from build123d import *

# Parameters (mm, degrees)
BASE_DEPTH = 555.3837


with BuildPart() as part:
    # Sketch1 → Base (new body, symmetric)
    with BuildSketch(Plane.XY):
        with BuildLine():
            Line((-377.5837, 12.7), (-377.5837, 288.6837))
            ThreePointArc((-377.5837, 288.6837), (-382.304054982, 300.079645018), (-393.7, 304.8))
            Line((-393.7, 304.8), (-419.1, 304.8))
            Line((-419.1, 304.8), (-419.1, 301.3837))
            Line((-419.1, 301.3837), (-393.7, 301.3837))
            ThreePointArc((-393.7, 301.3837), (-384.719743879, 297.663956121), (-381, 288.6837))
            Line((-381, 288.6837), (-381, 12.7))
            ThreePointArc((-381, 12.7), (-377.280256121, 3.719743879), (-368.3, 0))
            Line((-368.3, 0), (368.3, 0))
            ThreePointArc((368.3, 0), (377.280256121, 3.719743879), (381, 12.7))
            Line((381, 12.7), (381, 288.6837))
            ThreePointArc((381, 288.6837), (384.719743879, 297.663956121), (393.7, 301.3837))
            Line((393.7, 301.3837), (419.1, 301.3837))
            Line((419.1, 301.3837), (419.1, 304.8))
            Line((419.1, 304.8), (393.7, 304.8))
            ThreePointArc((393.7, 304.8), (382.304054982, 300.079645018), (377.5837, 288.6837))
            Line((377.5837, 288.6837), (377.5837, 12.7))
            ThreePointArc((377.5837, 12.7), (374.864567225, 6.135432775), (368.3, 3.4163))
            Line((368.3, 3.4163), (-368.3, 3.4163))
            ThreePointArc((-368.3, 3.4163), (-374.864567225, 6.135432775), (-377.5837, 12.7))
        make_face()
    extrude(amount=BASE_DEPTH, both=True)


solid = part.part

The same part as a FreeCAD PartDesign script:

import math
import FreeCAD as App
import Part
import Sketcher
Q = App.Units.Quantity

doc = App.newDocument("Part")
params = doc.addObject("Spreadsheet::Sheet", "Params")
for row, (alias, value) in enumerate([
    ("sketch1_radius", "0.5 in"),
    ("sketch1_width", "1 in"),
    ("sketch1_width2", "29 in"),
    ("pad1_length", "43.731 in"),
], start=1):
    params.set(f"A{row}", alias)
    params.set(f"B{row}", "=" + value)
    params.setAlias(f"B{row}", alias)

body = doc.addObject("PartDesign::Body", "Body")

sketch1 = doc.addObject("Sketcher::SketchObject", "Sketch")
body.addObject(sketch1)
sketch1.AttachmentSupport = (doc.XY_Plane, [""])
sketch1.MapMode = "FlatFace"
sketch1.addGeometry([
    Part.LineSegment(App.Vector(-377.5837, 12.7, 0), App.Vector(-377.5837, 288.6837, 0)),
    Part.ArcOfCircle(Part.Circle(App.Vector(-393.7, 288.6837, 0), App.Vector(0, 0, 1), 16.1163), math.radians(0), math.radians(90)),
    Part.LineSegment(App.Vector(-393.7, 304.8, 0), App.Vector(-419.1, 304.8, 0)),
    Part.LineSegment(App.Vector(-419.1, 304.8, 0), App.Vector(-419.1, 301.3837, 0)),
    Part.LineSegment(App.Vector(-419.1, 301.3837, 0), App.Vector(-393.7, 301.3837, 0)),
    Part.ArcOfCircle(Part.Circle(App.Vector(-393.7, 288.6837, 0), App.Vector(0, 0, 1), 12.7), math.radians(0), math.radians(90)),
    Part.LineSegment(App.Vector(-381, 288.6837, 0), App.Vector(-381, 12.7, 0)),
    Part.ArcOfCircle(Part.Circle(App.Vector(-368.3, 12.7, 0), App.Vector(0, 0, 1), 12.7), math.radians(180), math.radians(270)),
    Part.LineSegment(App.Vector(-368.3, 0, 0), App.Vector(368.3, 0, 0)),
    Part.ArcOfCircle(Part.Circle(App.Vector(368.3, 12.7, 0), App.Vector(0, 0, 1), 12.7), math.radians(-90), math.radians(0)),
    Part.LineSegment(App.Vector(381, 12.7, 0), App.Vector(381, 288.6837, 0)),
    Part.ArcOfCircle(Part.Circle(App.Vector(393.7, 288.6837, 0), App.Vector(0, 0, 1), 12.7), math.radians(90), math.radians(180)),
    Part.LineSegment(App.Vector(393.7, 301.3837, 0), App.Vector(419.1, 301.3837, 0)),
    Part.LineSegment(App.Vector(419.1, 301.3837, 0), App.Vector(419.1, 304.8, 0)),
    Part.LineSegment(App.Vector(419.1, 304.8, 0), App.Vector(393.7, 304.8, 0)),
    Part.ArcOfCircle(Part.Circle(App.Vector(393.7, 288.6837, 0), App.Vector(0, 0, 1), 16.1163), math.radians(90), math.radians(180)),
    Part.LineSegment(App.Vector(377.5837, 288.6837, 0), App.Vector(377.5837, 12.7, 0)),
    Part.ArcOfCircle(Part.Circle(App.Vector(368.3, 12.7, 0), App.Vector(0, 0, 1), 9.2837), math.radians(-90), math.radians(0)),
    Part.LineSegment(App.Vector(368.3, 3.4163, 0), App.Vector(-368.3, 3.4163, 0)),
    Part.ArcOfCircle(Part.Circle(App.Vector(-368.3, 12.7, 0), App.Vector(0, 0, 1), 9.2837), math.radians(180), math.radians(270)),
], False)
sketch1.addConstraint([
    Sketcher.Constraint("Tangent", 0, 2, 1, 1),
    Sketcher.Constraint("Tangent", 1, 2, 2, 1),
    Sketcher.Constraint("Coincident", 2, 2, 3, 1),
    Sketcher.Constraint("Coincident", 3, 2, 4, 1),
    Sketcher.Constraint("Tangent", 4, 2, 5, 2),
    Sketcher.Constraint("Tangent", 5, 1, 6, 1),
    Sketcher.Constraint("Tangent", 6, 2, 7, 1),
    Sketcher.Constraint("Tangent", 7, 2, 8, 1),
    Sketcher.Constraint("Tangent", 8, 2, 9, 1),
    Sketcher.Constraint("Tangent", 9, 2, 10, 1),
    Sketcher.Constraint("Tangent", 10, 2, 11, 2),
    Sketcher.Constraint("Tangent", 11, 1, 12, 1),
    Sketcher.Constraint("Coincident", 12, 2, 13, 1),
    Sketcher.Constraint("Coincident", 13, 2, 14, 1),
    Sketcher.Constraint("Tangent", 14, 2, 15, 1),
    Sketcher.Constraint("Tangent", 15, 2, 16, 1),
    Sketcher.Constraint("Tangent", 16, 2, 17, 2),
    Sketcher.Constraint("Tangent", 17, 1, 18, 1),
    Sketcher.Constraint("Tangent", 18, 2, 19, 2),
    Sketcher.Constraint("Tangent", 19, 1, 0, 1),
    Sketcher.Constraint("Vertical", 0),
    Sketcher.Constraint("Horizontal", 2),
    Sketcher.Constraint("Vertical", 3),
    Sketcher.Constraint("Horizontal", 4),
    Sketcher.Constraint("Vertical", 6),
    Sketcher.Constraint("Horizontal", 8),
    Sketcher.Constraint("Vertical", 10),
    Sketcher.Constraint("Horizontal", 12),
    Sketcher.Constraint("Vertical", 13),
    Sketcher.Constraint("Horizontal", 14),
    Sketcher.Constraint("Vertical", 16),
    Sketcher.Constraint("Horizontal", 18),
    Sketcher.Constraint("Coincident", 5, 3, 1, 3),
    Sketcher.Constraint("Coincident", 15, 3, 11, 3),
    Sketcher.Constraint("Coincident", 17, 3, 9, 3),
    Sketcher.Constraint("Coincident", 19, 3, 7, 3),
    Sketcher.Constraint("Equal", 5, 7),
    Sketcher.Constraint("Equal", 7, 9),
    Sketcher.Constraint("Equal", 9, 11),
    Sketcher.Constraint("Symmetric", 7, 2, 8, 2, -1, 1),
    Sketcher.Constraint("Symmetric", 3, 2, 12, 2, -2),
    Sketcher.Constraint("Radius", 5, Q("0.5 in")),
    Sketcher.Constraint("DistanceX", 2, 2, 2, 1, Q("1 in")),
    Sketcher.Constraint("DistanceX", 8, 1, 8, 2, Q("29 in")),
    Sketcher.Constraint("DistanceY", -1, 1, 1, 2, Q("12 in")),
    Sketcher.Constraint("Radius", 1, Q("0.6345 in")),
])
sketch1.setExpression("Constraints[41]", "Params.sketch1_radius")
sketch1.setExpression("Constraints[42]", "Params.sketch1_width")
sketch1.setExpression("Constraints[43]", "Params.sketch1_width2")
pad1 = doc.addObject("PartDesign::Pad", "Pad")
body.addObject(pad1)
pad1.Profile = sketch1
pad1.setExpression("Length", "Params.pad1_length")
pad1.Midplane = True

doc.recompute()
